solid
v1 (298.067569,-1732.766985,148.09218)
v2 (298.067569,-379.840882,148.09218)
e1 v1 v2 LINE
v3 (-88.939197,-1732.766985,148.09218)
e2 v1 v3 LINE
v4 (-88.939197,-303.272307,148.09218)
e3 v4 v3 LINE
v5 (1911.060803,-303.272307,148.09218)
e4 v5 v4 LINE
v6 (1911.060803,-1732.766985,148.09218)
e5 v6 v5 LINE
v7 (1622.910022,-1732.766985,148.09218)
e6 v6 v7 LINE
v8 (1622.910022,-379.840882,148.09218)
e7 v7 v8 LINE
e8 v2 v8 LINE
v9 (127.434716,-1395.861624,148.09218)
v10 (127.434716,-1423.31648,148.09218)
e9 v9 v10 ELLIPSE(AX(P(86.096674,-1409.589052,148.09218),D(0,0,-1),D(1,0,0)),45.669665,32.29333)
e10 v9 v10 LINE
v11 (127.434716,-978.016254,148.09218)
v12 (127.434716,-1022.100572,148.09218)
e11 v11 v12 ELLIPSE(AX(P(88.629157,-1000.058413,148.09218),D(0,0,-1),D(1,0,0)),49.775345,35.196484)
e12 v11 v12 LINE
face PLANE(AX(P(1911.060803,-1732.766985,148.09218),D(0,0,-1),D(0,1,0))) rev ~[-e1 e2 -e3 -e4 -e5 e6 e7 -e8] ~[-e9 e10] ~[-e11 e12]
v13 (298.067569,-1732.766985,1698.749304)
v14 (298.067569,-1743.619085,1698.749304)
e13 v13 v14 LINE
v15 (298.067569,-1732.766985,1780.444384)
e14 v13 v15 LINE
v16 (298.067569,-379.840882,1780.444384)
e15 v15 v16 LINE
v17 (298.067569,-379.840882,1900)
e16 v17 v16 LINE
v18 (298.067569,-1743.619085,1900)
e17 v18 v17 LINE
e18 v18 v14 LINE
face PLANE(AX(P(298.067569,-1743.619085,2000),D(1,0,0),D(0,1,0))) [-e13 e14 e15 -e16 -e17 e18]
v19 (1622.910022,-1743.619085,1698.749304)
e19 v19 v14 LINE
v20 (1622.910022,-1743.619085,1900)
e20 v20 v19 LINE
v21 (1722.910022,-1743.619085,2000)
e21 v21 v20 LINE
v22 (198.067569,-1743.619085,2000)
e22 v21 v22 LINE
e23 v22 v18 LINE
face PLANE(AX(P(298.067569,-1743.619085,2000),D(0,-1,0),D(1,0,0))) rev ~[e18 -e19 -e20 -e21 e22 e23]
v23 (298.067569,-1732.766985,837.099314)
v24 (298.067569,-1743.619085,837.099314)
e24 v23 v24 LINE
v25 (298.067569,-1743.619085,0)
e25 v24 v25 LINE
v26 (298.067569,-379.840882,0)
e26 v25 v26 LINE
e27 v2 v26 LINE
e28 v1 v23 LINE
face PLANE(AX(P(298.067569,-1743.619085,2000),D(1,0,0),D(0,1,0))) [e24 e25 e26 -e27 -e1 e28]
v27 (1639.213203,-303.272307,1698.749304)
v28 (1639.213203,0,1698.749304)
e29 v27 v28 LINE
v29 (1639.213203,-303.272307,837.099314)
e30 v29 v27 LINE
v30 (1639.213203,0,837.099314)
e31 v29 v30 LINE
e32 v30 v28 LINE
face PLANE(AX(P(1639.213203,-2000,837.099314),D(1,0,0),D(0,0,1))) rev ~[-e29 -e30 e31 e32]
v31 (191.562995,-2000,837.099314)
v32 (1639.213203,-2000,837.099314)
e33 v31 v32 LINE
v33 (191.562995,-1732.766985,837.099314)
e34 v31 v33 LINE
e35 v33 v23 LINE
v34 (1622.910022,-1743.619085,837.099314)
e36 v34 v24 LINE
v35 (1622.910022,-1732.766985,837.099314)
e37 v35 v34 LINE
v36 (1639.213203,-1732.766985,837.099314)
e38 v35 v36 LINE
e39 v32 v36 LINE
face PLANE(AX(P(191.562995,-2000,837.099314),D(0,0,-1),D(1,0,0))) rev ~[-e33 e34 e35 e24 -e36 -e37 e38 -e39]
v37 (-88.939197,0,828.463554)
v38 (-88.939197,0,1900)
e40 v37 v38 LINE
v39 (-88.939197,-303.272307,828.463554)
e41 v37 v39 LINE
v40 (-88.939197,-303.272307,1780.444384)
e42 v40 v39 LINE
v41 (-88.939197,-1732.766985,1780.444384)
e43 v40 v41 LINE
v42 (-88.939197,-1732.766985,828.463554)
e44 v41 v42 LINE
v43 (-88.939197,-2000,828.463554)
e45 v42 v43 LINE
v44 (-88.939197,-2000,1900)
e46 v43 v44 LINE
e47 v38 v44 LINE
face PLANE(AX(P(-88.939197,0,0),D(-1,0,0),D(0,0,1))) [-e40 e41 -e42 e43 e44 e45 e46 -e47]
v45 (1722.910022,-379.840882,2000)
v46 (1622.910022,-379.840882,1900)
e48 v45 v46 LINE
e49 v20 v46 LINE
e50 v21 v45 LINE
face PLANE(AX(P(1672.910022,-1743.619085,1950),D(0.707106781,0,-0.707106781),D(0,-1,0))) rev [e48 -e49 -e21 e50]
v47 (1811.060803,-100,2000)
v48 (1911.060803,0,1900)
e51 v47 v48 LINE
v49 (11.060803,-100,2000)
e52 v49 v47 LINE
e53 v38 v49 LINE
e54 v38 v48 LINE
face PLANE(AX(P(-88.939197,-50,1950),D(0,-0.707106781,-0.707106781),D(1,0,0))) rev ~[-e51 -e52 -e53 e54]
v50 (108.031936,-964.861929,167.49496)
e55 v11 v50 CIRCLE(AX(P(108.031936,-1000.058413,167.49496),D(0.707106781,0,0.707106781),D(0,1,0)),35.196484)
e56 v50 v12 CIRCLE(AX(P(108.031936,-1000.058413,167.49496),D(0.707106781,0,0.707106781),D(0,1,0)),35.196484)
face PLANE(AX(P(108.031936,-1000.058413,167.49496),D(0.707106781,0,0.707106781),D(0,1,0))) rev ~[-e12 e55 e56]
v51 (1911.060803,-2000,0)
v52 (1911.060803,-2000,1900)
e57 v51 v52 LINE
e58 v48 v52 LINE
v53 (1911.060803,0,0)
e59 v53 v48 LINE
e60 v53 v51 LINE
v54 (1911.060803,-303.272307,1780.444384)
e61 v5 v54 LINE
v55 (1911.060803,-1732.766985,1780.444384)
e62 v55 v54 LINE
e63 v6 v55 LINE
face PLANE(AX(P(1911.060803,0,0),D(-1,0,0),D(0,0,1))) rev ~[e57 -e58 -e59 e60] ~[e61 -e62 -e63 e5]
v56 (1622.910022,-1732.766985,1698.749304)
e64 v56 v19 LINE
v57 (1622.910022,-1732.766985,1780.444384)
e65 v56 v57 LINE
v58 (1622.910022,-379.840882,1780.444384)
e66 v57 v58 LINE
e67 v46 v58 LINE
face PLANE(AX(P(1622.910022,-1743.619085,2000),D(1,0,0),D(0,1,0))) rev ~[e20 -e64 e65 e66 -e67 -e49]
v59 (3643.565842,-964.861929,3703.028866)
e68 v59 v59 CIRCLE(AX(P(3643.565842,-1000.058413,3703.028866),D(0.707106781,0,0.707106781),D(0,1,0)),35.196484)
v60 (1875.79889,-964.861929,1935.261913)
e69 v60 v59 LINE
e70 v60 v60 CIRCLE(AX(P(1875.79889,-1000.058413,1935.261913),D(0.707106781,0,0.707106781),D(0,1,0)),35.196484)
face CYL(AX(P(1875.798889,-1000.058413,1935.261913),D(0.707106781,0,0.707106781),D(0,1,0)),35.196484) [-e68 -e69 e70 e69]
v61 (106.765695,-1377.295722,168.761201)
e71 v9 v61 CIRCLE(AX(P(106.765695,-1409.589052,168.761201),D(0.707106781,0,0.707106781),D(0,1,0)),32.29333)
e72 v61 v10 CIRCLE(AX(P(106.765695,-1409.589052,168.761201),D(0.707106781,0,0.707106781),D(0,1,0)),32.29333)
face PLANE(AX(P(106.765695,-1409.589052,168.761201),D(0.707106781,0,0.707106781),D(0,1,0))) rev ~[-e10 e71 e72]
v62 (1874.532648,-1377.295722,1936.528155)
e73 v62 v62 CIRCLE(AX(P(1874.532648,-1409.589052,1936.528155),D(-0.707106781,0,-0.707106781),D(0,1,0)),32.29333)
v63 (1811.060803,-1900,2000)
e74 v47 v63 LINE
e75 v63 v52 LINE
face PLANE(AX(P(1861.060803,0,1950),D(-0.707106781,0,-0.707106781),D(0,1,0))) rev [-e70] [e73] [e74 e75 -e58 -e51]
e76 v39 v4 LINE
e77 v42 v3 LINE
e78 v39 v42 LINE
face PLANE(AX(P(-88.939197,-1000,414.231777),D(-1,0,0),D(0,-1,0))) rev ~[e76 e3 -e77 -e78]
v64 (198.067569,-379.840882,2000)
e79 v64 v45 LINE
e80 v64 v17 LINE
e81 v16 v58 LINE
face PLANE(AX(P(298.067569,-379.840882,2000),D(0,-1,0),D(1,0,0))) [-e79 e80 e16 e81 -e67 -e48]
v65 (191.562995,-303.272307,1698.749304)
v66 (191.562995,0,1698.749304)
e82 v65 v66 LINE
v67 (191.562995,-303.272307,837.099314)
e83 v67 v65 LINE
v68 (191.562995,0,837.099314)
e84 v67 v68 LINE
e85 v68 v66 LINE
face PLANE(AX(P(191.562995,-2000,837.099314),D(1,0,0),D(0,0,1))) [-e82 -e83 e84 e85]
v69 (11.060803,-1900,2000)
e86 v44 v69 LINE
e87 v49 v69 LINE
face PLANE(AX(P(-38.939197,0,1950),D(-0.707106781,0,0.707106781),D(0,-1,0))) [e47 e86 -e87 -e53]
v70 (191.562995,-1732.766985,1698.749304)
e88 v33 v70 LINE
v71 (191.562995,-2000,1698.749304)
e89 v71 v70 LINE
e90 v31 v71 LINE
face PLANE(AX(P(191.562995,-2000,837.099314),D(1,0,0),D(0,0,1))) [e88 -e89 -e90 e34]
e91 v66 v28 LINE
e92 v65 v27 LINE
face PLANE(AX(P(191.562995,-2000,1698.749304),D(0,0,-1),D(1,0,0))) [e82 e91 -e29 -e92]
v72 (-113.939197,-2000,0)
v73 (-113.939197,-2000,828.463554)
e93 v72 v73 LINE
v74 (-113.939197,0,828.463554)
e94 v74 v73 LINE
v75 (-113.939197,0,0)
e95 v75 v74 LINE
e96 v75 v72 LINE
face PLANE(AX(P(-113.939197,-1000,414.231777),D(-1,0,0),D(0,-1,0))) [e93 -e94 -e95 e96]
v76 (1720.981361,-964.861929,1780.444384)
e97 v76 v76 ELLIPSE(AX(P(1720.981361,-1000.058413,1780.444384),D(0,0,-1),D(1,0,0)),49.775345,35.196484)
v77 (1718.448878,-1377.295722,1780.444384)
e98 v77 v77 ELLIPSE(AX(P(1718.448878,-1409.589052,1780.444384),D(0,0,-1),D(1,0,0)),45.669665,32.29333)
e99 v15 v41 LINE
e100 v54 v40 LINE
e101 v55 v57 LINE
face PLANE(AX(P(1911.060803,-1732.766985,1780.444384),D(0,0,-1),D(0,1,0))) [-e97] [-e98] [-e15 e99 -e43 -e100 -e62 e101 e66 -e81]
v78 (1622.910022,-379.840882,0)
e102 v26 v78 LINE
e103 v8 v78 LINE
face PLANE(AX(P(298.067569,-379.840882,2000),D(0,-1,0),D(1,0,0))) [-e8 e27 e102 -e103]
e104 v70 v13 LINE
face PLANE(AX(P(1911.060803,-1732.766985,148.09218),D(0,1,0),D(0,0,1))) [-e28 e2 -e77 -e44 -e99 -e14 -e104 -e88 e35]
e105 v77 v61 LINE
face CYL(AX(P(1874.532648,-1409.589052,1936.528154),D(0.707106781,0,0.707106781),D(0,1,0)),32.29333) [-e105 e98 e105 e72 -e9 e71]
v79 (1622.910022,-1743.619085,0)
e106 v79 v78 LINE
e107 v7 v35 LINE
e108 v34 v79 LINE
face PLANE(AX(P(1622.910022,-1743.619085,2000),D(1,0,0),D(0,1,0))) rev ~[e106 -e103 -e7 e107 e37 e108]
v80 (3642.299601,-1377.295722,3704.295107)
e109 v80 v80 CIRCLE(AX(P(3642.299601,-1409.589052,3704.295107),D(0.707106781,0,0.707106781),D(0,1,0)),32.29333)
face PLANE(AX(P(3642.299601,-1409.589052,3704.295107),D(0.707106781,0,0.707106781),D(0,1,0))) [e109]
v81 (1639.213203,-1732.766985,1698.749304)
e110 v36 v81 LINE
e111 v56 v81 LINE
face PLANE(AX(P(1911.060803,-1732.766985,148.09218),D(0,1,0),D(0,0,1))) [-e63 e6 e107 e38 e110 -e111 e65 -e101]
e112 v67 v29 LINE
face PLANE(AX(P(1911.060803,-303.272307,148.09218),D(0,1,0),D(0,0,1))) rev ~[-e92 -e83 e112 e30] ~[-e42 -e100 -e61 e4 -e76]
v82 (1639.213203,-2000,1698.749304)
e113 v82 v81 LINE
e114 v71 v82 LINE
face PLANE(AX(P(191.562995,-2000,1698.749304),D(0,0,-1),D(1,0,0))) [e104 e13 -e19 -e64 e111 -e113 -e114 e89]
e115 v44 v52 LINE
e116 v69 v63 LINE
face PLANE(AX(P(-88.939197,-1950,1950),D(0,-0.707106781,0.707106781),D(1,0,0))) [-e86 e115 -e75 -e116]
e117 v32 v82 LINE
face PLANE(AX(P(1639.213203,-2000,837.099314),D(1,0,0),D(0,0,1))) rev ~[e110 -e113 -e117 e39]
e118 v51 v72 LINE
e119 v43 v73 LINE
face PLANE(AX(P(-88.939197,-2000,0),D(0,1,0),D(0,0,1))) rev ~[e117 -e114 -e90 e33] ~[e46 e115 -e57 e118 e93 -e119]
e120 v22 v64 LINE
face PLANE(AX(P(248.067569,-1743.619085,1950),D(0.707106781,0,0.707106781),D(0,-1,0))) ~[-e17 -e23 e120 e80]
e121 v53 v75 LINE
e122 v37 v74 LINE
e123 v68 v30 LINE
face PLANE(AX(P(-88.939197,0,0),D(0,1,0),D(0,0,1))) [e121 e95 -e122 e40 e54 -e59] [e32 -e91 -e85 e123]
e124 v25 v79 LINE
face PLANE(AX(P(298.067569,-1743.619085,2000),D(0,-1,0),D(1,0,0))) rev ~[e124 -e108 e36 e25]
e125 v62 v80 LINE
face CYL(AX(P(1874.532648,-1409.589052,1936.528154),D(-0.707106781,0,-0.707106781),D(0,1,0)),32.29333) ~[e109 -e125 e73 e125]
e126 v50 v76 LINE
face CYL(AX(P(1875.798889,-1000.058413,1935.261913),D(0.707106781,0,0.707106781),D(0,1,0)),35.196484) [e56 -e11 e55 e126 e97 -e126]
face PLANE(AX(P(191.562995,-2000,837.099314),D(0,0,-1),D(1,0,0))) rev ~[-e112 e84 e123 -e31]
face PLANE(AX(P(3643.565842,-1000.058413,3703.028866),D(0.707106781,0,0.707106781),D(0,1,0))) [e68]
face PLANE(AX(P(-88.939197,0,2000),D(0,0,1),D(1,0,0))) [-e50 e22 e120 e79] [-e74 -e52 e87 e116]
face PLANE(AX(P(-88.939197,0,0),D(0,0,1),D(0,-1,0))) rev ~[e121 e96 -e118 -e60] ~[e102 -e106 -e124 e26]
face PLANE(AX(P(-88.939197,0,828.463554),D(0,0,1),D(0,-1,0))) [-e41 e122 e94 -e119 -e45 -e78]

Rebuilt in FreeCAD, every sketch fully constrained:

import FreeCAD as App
import Part
import Sketcher

V = App.Vector


def edges_at(feature, points):
    """Names of the edges that pass closest to the given points."""
    edges = feature.Shape.Edges
    near = lambda p: min(range(len(edges)), key=lambda i: edges[i].distToShape(Part.Vertex(*p))[0])
    return sorted({f"Edge{near(p) + 1}" for p in points})


def add_polygon(sketch, points):
    """Adds a closed chain of lines whose ends are joined by coincident constraints."""
    first, n = sketch.GeometryCount, len(points)
    for a, b in zip(points, points[1:] + points[:1]):
        sketch.addGeometry(Part.LineSegment(App.Vector(*a, 0), App.Vector(*b, 0)), False)
    for i in range(n):
        sketch.addConstraint(Sketcher.Constraint("Coincident", first + i, 2, first + (i + 1) % n, 1))

doc = App.newDocument("Part")
params = doc.addObject("Spreadsheet::Sheet", "Params")
for row, (alias, value) in enumerate([
    ("sketch1_width", "2000 mm"),
    ("pad1_length", "2000 mm"),
    ("chamfer_size", "100 mm"),
    ("sketch5_width", "2000 mm"),
    ("pad2_length", "25 mm"),
    ("pad3_length", "5000 mm"),
], start=1):
    params.set(f"A{row}", alias)
    params.set(f"B{row}", "=" + value)
    params.setAlias(f"B{row}", alias)

body = doc.addObject("PartDesign::Body", "Body")

# Sketch on XZ plane
sketch1 = body.newObject("Sketcher::SketchObject", "Sketch")
sketch1.AttachmentSupport = (doc.getObject("XZ_Plane"), [""])
sketch1.MapMode = "FlatFace"
add_polygon(sketch1, [(-88.939197, 2000), (-88.939197, 0), (1911.060803, 0), (1911.060803, 2000)])  # lines 0-3
sketch1.addConstraint([
    Sketcher.Constraint("Vertical", 0),
    Sketcher.Constraint("Horizontal", 1),
    Sketcher.Constraint("Vertical", 2),
    Sketcher.Constraint("Horizontal", 3),
    Sketcher.Constraint("PointOnObject", 0, 2, -1),
    Sketcher.Constraint("Equal", 3, 0),
    Sketcher.Constraint("DistanceX", 1, 1, 1, 2, 2000.0),
    Sketcher.Constraint("DistanceX", 0, 2, -1, 1, 88.939197),
])
sketch1.setExpression("Constraints[10]", "Params.sketch1_width")
pad1 = body.newObject("PartDesign::Pad", "Pad")
pad1.Profile = sketch1
pad1.setExpression("Length", "Params.pad1_length")

# Sketch on XZ plane
sketch2 = body.newObject("Sketcher::SketchObject", "Sketch001")
sketch2.AttachmentSupport = (doc.getObject("XZ_Plane"), [""])
sketch2.MapMode = "FlatFace"
sketch2.AttachmentOffset = App.Placement(V(0, 0, 2000), App.Rotation())
add_polygon(sketch2, [(191.562995, 1698.749304), (191.562995, 837.099314), (1639.213203, 837.099314), (1639.213203, 1698.749304)])  # lines 0-3
sketch2.addConstraint([
    Sketcher.Constraint("Vertical", 0),
    Sketcher.Constraint("Horizontal", 1),
    Sketcher.Constraint("Vertical", 2),
    Sketcher.Constraint("Horizontal", 3),
    Sketcher.Constraint("DistanceX", 1, 1, 1, 2, 1447.650209),
    Sketcher.Constraint("DistanceY", 0, 2, 0, 1, 861.64999),
    Sketcher.Constraint("DistanceX", -1, 1, 0, 2, 191.562995),
    Sketcher.Constraint("DistanceY", -1, 1, 0, 2, 837.099314),
])
pocket1 = body.newObject("PartDesign::Pocket", "Pocket")
pocket1.Profile = sketch2
pocket1.Type = "ThroughAll"

# Sketch on XY plane
sketch3 = body.newObject("Sketcher::SketchObject", "Sketch002")
sketch3.AttachmentSupport = (doc.getObject("XY_Plane"), [""])
sketch3.MapMode = "FlatFace"
sketch3.AttachmentOffset = App.Placement(V(0, 0, 2000), App.Rotation())
add_polygon(sketch3, [(298.067569, -379.840882), (298.067569, -1743.619085), (1622.910022, -1743.619085), (1622.910022, -379.840882)])  # lines 0-3
sketch3.addConstraint([
    Sketcher.Constraint("Vertical", 0),
    Sketcher.Constraint("Horizontal", 1),
    Sketcher.Constraint("Vertical", 2),
    Sketcher.Constraint("Horizontal", 3),
    Sketcher.Constraint("DistanceX", 1, 1, 1, 2, 1324.842453),
    Sketcher.Constraint("DistanceY", 0, 2, 0, 1, 1363.778203),
    Sketcher.Constraint("DistanceX", -1, 1, 0, 2, 298.067569),
    Sketcher.Constraint("DistanceY", 2, 2, -1, 1, 379.840882),
])
pocket2 = body.newObject("PartDesign::Pocket", "Pocket001")
pocket2.Profile = sketch3
pocket2.Type = "ThroughAll"

# Sketch on YZ plane
sketch4 = body.newObject("Sketcher::SketchObject", "Sketch003")
sketch4.AttachmentSupport = (doc.getObject("YZ_Plane"), [""])
sketch4.MapMode = "FlatFace"
sketch4.AttachmentOffset = App.Placement(V(0, 0, 1911.060803), App.Rotation())
add_polygon(sketch4, [(-1732.766985, 1780.444384), (-1732.766985, 148.09218), (-303.272307, 148.09218), (-303.272307, 1780.444384)])  # lines 0-3
sketch4.addConstraint([
    Sketcher.Constraint("Vertical", 0),
    Sketcher.Constraint("Horizontal", 1),
    Sketcher.Constraint("Vertical", 2),
    Sketcher.Constraint("Horizontal", 3),
    Sketcher.Constraint("DistanceX", 1, 1, 1, 2, 1429.494679),
    Sketcher.Constraint("DistanceY", 0, 2, 0, 1, 1632.352204),
    Sketcher.Constraint("DistanceY", -1, 1, 0, 2, 148.09218),
    Sketcher.Constraint("DistanceX", 0, 2, -1, 1, 1732.766985),
])
pocket3 = body.newObject("PartDesign::Pocket", "Pocket002")
pocket3.Profile = sketch4
pocket3.Type = "ThroughAll"
doc.recompute()

chamfer = body.newObject("PartDesign::Chamfer", "Chamfer")
chamfer.Base = (pocket3, edges_at(pocket3, [
    (1911.061, -1000, 2000),
    (911.061, 0, 2000),
    (911.061, -2000, 2000),
    (-88.939, -1000, 2000),
    (298.068, -1061.73, 2000),
    (1622.91, -1061.73, 2000),
]))
chamfer.setExpression("Size", "Params.chamfer_size")

# Sketch on YZ plane
sketch5 = body.newObject("Sketcher::SketchObject", "Sketch004")
sketch5.AttachmentSupport = (doc.getObject("YZ_Plane"), [""])
sketch5.MapMode = "FlatFace"
sketch5.AttachmentOffset = App.Placement(V(0, 0, -88.939197), App.Rotation())
add_polygon(sketch5, [(0, 828.463554), (0, 0), (-2000, 0), (-2000, 828.463554)])  # lines 0-3
sketch5.addConstraint([
    Sketcher.Constraint("Vertical", 0),
    Sketcher.Constraint("Horizontal", 1),
    Sketcher.Constraint("Vertical", 2),
    Sketcher.Constraint("Horizontal", 3),
    Sketcher.Constraint("Coincident", 0, 2, -1, 1),
    Sketcher.Constraint("DistanceX", 1, 2, 1, 1, 2000.0),
    Sketcher.Constraint("DistanceY", 0, 2, 0, 1, 828.463554),
])
sketch5.setExpression("Constraints[9]", "Params.sketch5_width")
pad2 = body.newObject("PartDesign::Pad", "Pad001")
pad2.Profile = sketch5
pad2.setExpression("Length", "Params.pad2_length")
pad2.Reversed = True

# Sketch on an angled plane
sketch6 = body.newObject("Sketcher::SketchObject", "Sketch005")
sketch6.Placement = App.Placement(V(1905.530401, 0, 1905.530401), App.Rotation(V(0, 1, 0), V(-0.707106781, 0, 0.707106781), V(0.707106781, 0, 0.707106781), "ZXY"))
sketch6.addGeometry([
    Part.Circle(V(-1409.589052, 43.837443, 0), V(0, 0, 1), 32.29333),
    Part.Circle(V(-1000.058413, 42.046707, 0), V(0, 0, 1), 35.196484),
], False)
sketch6.addConstraint([
    Sketcher.Constraint("Diameter", 0, 64.58666),
    Sketcher.Constraint("Diameter", 1, 70.392968),
    Sketcher.Constraint("DistanceX", 0, 3, -1, 1, 1409.589052),
    Sketcher.Constraint("DistanceX", 0, 3, 1, 3, 409.530639),
    Sketcher.Constraint("DistanceY", -1, 1, 0, 3, 43.837443),
    Sketcher.Constraint("DistanceY", -1, 1, 1, 3, 42.046707),
])
pad3 = body.newObject("PartDesign::Pad", "Pad002")
pad3.Profile = sketch6
pad3.setExpression("Length", "Params.pad3_length")
pad3.Midplane = True

doc.recompute()
